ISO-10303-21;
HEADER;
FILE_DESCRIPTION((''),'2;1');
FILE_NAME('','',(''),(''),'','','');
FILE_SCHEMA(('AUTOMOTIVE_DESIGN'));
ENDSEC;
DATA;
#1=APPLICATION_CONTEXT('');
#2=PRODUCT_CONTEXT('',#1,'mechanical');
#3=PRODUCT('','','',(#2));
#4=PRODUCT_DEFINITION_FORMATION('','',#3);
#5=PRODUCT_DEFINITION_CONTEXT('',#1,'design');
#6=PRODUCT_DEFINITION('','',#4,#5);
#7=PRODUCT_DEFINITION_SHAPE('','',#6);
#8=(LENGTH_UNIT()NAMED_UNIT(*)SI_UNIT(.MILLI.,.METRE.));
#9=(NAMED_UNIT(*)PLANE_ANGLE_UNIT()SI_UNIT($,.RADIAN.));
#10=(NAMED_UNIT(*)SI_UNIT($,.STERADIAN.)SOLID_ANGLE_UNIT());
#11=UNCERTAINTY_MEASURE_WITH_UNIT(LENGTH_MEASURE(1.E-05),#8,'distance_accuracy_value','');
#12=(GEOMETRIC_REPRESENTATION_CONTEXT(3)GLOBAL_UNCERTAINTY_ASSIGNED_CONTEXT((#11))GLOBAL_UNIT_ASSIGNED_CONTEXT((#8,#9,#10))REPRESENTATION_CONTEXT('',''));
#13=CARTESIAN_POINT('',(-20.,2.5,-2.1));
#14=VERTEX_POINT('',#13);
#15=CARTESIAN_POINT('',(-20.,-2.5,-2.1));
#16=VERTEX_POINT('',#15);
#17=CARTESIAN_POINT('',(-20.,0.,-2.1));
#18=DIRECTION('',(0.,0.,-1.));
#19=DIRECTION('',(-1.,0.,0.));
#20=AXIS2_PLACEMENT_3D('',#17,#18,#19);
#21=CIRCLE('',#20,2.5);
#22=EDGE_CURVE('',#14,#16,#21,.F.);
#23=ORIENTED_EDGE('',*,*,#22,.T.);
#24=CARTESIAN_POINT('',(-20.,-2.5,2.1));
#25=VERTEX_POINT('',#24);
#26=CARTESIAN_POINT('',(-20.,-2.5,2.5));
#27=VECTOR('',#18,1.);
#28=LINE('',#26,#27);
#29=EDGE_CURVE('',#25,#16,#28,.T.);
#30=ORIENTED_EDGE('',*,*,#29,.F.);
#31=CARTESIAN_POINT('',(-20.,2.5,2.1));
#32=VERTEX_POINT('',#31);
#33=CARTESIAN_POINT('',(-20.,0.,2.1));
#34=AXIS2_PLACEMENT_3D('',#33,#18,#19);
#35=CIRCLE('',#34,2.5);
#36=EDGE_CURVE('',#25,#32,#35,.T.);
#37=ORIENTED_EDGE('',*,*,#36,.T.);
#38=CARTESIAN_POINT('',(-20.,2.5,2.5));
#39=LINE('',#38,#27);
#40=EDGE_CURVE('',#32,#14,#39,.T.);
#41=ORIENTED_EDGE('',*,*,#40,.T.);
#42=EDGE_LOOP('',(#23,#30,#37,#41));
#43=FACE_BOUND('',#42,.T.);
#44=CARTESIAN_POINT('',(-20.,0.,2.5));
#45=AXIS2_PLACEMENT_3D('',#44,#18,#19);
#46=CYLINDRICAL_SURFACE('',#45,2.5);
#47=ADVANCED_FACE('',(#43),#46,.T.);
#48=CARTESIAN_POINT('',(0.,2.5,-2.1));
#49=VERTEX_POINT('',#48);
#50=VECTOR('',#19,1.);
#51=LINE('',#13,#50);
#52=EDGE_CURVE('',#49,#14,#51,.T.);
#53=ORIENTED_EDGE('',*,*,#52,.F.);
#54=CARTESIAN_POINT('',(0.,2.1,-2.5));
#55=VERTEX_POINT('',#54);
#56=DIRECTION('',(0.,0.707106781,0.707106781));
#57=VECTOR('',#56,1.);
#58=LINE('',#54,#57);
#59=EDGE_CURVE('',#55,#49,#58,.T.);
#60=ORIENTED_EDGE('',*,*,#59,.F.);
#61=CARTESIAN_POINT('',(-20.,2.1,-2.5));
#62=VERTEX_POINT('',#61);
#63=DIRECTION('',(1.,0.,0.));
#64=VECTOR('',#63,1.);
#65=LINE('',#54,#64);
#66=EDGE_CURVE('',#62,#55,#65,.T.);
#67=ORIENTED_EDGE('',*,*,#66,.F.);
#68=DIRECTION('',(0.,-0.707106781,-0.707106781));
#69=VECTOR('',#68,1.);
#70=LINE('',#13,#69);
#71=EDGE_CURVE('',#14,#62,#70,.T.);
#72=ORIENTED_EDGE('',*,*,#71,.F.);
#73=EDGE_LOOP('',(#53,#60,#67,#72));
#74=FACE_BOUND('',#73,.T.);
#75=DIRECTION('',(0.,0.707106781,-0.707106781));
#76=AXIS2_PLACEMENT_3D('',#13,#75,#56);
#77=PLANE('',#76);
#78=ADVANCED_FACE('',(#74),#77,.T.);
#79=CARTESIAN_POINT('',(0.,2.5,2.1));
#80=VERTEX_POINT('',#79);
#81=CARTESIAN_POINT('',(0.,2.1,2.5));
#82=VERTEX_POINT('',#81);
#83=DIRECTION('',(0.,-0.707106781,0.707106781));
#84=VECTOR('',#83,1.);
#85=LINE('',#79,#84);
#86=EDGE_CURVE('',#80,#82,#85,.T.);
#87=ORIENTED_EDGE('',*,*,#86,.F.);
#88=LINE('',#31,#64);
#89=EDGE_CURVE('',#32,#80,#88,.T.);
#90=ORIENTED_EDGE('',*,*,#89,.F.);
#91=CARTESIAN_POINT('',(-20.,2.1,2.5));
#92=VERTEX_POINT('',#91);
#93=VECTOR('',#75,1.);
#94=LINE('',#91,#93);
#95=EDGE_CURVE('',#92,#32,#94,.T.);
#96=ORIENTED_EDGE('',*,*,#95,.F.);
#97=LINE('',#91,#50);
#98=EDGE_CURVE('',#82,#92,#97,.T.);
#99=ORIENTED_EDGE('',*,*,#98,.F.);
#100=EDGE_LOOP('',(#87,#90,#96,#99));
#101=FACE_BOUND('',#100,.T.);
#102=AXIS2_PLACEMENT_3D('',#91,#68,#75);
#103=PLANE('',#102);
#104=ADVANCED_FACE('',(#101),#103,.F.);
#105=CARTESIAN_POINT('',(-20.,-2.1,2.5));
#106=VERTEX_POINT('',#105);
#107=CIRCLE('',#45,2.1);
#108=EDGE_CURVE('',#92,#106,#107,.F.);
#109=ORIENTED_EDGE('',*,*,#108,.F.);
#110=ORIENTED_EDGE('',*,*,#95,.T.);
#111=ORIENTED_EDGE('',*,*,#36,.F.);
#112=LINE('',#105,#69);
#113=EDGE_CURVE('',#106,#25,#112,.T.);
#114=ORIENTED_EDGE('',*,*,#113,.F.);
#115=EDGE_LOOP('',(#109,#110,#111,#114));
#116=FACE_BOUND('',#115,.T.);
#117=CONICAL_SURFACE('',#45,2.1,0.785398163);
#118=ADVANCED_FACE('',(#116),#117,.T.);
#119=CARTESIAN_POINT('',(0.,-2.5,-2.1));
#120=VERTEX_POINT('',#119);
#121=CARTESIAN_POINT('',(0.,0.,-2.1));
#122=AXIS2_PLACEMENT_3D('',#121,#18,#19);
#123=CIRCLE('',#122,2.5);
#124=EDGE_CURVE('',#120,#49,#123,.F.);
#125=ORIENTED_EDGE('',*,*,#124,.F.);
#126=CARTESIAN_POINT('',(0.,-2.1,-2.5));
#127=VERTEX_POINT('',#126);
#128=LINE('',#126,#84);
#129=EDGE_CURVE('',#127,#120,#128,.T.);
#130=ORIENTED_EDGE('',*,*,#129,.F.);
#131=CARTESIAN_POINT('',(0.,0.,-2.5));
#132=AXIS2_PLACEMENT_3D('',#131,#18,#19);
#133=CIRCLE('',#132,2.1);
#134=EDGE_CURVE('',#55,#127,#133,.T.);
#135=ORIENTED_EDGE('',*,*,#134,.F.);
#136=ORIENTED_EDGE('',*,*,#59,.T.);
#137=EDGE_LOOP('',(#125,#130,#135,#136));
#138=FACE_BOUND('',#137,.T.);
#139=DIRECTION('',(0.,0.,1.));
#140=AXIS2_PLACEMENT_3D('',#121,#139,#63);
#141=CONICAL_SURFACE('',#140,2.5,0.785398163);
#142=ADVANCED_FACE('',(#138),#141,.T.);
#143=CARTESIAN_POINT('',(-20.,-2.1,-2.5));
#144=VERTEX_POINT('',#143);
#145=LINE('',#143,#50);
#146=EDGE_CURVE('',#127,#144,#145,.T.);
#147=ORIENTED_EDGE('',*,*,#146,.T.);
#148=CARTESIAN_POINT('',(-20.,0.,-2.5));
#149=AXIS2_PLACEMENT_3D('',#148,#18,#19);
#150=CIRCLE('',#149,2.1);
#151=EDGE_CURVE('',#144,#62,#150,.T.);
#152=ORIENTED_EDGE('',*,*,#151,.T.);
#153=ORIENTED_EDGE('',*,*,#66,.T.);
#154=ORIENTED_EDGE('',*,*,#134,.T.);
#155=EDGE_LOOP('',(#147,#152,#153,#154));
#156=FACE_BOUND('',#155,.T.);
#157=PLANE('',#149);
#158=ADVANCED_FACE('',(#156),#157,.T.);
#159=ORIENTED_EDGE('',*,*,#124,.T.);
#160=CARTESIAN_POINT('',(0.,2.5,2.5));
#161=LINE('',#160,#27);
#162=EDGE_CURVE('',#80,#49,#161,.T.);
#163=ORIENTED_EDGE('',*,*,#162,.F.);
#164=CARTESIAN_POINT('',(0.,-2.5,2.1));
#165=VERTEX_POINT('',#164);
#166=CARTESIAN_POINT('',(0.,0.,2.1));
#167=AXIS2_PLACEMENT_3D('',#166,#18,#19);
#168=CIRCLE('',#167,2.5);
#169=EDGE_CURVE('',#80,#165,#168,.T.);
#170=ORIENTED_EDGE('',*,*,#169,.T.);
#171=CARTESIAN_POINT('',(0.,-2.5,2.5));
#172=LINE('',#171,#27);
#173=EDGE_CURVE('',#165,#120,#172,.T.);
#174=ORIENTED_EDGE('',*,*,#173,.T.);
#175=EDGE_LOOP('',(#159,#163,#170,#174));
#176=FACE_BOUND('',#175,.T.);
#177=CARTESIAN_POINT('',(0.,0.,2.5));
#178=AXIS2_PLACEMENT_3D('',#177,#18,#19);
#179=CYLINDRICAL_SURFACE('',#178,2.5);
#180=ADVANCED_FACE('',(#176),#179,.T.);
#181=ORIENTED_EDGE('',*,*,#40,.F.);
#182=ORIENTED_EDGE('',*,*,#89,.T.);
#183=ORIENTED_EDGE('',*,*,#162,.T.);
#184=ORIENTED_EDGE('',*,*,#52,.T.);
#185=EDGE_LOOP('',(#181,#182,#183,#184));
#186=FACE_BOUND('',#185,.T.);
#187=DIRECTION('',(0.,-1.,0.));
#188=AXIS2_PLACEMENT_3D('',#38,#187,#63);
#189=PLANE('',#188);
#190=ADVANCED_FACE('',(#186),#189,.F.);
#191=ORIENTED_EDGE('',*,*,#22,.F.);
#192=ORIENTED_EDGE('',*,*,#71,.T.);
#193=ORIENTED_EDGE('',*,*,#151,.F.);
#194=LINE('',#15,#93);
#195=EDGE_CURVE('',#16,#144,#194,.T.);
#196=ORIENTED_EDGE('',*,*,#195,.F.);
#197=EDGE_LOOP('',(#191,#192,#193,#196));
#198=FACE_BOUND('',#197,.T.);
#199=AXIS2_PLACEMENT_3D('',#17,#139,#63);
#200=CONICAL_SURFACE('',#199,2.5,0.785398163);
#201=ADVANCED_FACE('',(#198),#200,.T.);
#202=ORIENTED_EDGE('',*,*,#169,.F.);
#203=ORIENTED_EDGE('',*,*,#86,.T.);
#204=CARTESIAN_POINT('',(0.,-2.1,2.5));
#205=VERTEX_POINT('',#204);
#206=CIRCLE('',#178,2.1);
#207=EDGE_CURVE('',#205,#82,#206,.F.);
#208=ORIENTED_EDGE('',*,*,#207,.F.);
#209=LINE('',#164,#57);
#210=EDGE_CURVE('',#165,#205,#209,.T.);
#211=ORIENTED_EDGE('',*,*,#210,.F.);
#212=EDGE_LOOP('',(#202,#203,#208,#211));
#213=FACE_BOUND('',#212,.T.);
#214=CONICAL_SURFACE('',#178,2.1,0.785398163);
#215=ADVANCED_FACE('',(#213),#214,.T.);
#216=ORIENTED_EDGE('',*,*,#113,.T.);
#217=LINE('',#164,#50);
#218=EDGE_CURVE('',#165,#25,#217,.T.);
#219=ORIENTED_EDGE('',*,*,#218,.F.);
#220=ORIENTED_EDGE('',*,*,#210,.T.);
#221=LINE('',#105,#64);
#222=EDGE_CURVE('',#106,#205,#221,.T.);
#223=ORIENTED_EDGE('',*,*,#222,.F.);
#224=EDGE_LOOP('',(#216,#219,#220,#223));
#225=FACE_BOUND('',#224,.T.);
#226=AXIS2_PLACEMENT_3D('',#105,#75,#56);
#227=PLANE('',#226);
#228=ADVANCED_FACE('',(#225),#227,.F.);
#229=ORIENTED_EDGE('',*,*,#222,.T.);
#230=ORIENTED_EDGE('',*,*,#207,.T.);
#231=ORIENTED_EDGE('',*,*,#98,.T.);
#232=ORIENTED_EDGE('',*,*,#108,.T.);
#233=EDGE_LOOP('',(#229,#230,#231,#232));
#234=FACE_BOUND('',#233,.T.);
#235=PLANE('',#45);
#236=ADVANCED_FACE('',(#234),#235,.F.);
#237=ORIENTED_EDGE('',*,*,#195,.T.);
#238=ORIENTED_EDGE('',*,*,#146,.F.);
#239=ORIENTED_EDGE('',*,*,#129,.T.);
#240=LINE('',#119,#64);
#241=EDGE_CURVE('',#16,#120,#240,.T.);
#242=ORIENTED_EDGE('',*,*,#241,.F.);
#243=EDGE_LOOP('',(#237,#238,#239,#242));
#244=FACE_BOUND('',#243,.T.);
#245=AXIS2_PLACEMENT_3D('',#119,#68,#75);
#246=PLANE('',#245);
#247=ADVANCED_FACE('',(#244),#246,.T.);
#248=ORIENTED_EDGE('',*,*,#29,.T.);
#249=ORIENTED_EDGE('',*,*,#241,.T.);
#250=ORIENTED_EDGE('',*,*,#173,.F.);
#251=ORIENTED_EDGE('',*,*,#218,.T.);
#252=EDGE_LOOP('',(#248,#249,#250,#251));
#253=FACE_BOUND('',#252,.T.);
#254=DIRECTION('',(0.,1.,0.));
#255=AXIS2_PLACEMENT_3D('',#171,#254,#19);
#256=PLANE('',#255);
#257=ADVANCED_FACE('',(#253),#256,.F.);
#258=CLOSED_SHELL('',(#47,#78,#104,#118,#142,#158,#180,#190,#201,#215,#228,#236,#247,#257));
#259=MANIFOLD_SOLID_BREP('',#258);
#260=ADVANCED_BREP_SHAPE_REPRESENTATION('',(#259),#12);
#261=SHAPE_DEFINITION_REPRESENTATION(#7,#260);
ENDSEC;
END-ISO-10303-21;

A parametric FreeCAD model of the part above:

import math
import FreeCAD as App
import Part
import Sketcher


def edges_at(feature, points):
    """Names of the edges that pass closest to the given points."""
    edges = feature.Shape.Edges
    near = lambda p: min(range(len(edges)), key=lambda i: edges[i].distToShape(Part.Vertex(*p))[0])
    return sorted({f"Edge{near(p) + 1}" for p in points})

doc = App.newDocument("Part")
body = doc.addObject("PartDesign::Body", "Body")

sketch1 = body.newObject("Sketcher::SketchObject", "Sketch")
sketch1.AttachmentSupport = (doc.getObject("XY_Plane"), [""])
sketch1.MapMode = "FlatFace"
sketch1.addGeometry(Part.LineSegment(App.Vector(0, 2.5, 0), App.Vector(-20, 2.5, 0)), False)
sketch1.addGeometry(Part.ArcOfCircle(Part.Circle(App.Vector(-20, 0, 0), App.Vector(0, 0, 1), 2.5), math.radians(90), math.radians(270)), False)
sketch1.addGeometry(Part.LineSegment(App.Vector(-20, -2.5, 0), App.Vector(0, -2.5, 0)), False)
sketch1.addGeometry(Part.ArcOfCircle(Part.Circle(App.Vector(0, 0, 0), App.Vector(0, 0, 1), 2.5), math.radians(-90), math.radians(90)), False)
sketch1.addConstraint(Sketcher.Constraint("Tangent", 0, 2, 1, 1))
sketch1.addConstraint(Sketcher.Constraint("Tangent", 1, 2, 2, 1))
sketch1.addConstraint(Sketcher.Constraint("Tangent", 2, 2, 3, 1))
sketch1.addConstraint(Sketcher.Constraint("Tangent", 3, 2, 0, 1))
sketch1.addConstraint(Sketcher.Constraint("Horizontal", 0))
sketch1.addConstraint(Sketcher.Constraint("Horizontal", 2))
sketch1.addConstraint(Sketcher.Constraint("Coincident", 3, 3, -1, 1))
sketch1.addConstraint(Sketcher.Constraint("Radius", 1, 2.5))
sketch1.addConstraint(Sketcher.Constraint("DistanceX", 0, 2, 0, 1, 20.0))
pad1 = body.newObject("PartDesign::Pad", "Pad")
pad1.Profile = sketch1
pad1.Length = 5
pad1.Midplane = True
doc.recompute()

chamfer = body.newObject("PartDesign::Chamfer", "Chamfer")
chamfer.Base = (pad1, edges_at(pad1, [
    (2.5, 0, 2.5),
    (-10, 2.5, 2.5),
    (-22.5, 0, 2.5),
    (-10, 2.5, -2.5),
    (2.5, 0, -2.5),
    (-10, -2.5, -2.5),
    (-22.5, 0, -2.5),
    (-10, -2.5, 2.5),
]))
chamfer.Size = 0.4

doc.recompute()
